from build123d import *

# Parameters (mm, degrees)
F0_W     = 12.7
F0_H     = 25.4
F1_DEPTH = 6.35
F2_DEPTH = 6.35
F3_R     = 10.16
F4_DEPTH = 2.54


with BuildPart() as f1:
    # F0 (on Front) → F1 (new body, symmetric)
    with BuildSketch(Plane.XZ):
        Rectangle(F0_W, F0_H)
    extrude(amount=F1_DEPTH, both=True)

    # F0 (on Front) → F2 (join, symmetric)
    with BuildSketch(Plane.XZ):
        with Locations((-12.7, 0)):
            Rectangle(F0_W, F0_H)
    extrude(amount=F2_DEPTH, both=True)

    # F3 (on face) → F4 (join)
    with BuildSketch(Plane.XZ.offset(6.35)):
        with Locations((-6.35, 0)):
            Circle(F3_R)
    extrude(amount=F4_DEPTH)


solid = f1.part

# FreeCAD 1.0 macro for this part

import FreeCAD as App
import Part
import Sketcher

V = App.Vector
Q = App.Units.Quantity


def add_polygon(sketch, points):
    """Adds a closed chain of lines whose ends are joined by coincident constraints."""
    first, n = sketch.GeometryCount, len(points)
    for a, b in zip(points, points[1:] + points[:1]):
        sketch.addGeometry(Part.LineSegment(App.Vector(*a, 0), App.Vector(*b, 0)), False)
    for i in range(n):
        sketch.addConstraint(Sketcher.Constraint("Coincident", first + i, 2, first + (i + 1) % n, 1))

doc = App.newDocument("Part")
body = doc.addObject("PartDesign::Body", "Body")

# Sketch on XZ plane
sketch1 = body.newObject("Sketcher::SketchObject", "Sketch")
sketch1.AttachmentSupport = (doc.getObject("XZ_Plane"), [""])
sketch1.MapMode = "FlatFace"
add_polygon(sketch1, [(-6.35, 12.7), (-6.35, -12.7), (6.35, -12.7), (6.35, 12.7)])  # lines 0-3
sketch1.addConstraint(Sketcher.Constraint("Vertical", 0))
sketch1.addConstraint(Sketcher.Constraint("Horizontal", 1))
sketch1.addConstraint(Sketcher.Constraint("Vertical", 2))
sketch1.addConstraint(Sketcher.Constraint("Horizontal", 3))
sketch1.addConstraint(Sketcher.Constraint("Symmetric", 0, 2, 2, 2, -1, 1))
sketch1.addConstraint(Sketcher.Constraint("DistanceY", 0, 2, 0, 1, Q("1 in")))
sketch1.addConstraint(Sketcher.Constraint("DistanceX", 1, 1, 1, 2, Q("0.5 in")))
pad1 = body.newObject("PartDesign::Pad", "Pad")
pad1.Profile = sketch1
pad1.Length = Q("0.5 in")
pad1.Midplane = True

# Sketch on XZ plane
sketch2 = body.newObject("Sketcher::SketchObject", "Sketch001")
sketch2.AttachmentSupport = (doc.getObject("XZ_Plane"), [""])
sketch2.MapMode = "FlatFace"
add_polygon(sketch2, [(-19.05, 12.7), (-19.05, -12.7), (-6.35, -12.7), (-6.35, 12.7)])  # lines 0-3
sketch2.addConstraint(Sketcher.Constraint("Vertical", 0))
sketch2.addConstraint(Sketcher.Constraint("Horizontal", 1))
sketch2.addConstraint(Sketcher.Constraint("Vertical", 2))
sketch2.addConstraint(Sketcher.Constraint("Horizontal", 3))
sketch2.addConstraint(Sketcher.Constraint("DistanceY", 0, 2, 0, 1, Q("1 in")))
sketch2.addConstraint(Sketcher.Constraint("DistanceX", 1, 1, 1, 2, Q("0.5 in")))
sketch2.addConstraint(Sketcher.Constraint("DistanceY", 0, 2, -1, 1, Q("0.5 in")))
sketch2.addConstraint(Sketcher.Constraint("DistanceX", 0, 2, -1, 1, Q("0.75 in")))
pad2 = body.newObject("PartDesign::Pad", "Pad001")
pad2.Profile = sketch2
pad2.Length = Q("0.5 in")
pad2.Midplane = True

# Sketch on XZ plane
sketch3 = body.newObject("Sketcher::SketchObject", "Sketch002")
sketch3.AttachmentSupport = (doc.getObject("XZ_Plane"), [""])
sketch3.MapMode = "FlatFace"
sketch3.AttachmentOffset = App.Placement(V(0, 0, 0.25 * 25.4), App.Rotation())
sketch3.addGeometry(Part.Circle(V(-6.35, 0, 0), V(0, 0, 1), 10.16), False)
sketch3.addConstraint(Sketcher.Constraint("PointOnObject", 0, 3, -1))
sketch3.addConstraint(Sketcher.Constraint("Diameter", 0, Q("0.8 in")))
sketch3.addConstraint(Sketcher.Constraint("DistanceX", 0, 3, -1, 1, Q("0.25 in")))
pad3 = body.newObject("PartDesign::Pad", "Pad002")
pad3.Profile = sketch3
pad3.Length = Q("0.1 in")

doc.recompute()
